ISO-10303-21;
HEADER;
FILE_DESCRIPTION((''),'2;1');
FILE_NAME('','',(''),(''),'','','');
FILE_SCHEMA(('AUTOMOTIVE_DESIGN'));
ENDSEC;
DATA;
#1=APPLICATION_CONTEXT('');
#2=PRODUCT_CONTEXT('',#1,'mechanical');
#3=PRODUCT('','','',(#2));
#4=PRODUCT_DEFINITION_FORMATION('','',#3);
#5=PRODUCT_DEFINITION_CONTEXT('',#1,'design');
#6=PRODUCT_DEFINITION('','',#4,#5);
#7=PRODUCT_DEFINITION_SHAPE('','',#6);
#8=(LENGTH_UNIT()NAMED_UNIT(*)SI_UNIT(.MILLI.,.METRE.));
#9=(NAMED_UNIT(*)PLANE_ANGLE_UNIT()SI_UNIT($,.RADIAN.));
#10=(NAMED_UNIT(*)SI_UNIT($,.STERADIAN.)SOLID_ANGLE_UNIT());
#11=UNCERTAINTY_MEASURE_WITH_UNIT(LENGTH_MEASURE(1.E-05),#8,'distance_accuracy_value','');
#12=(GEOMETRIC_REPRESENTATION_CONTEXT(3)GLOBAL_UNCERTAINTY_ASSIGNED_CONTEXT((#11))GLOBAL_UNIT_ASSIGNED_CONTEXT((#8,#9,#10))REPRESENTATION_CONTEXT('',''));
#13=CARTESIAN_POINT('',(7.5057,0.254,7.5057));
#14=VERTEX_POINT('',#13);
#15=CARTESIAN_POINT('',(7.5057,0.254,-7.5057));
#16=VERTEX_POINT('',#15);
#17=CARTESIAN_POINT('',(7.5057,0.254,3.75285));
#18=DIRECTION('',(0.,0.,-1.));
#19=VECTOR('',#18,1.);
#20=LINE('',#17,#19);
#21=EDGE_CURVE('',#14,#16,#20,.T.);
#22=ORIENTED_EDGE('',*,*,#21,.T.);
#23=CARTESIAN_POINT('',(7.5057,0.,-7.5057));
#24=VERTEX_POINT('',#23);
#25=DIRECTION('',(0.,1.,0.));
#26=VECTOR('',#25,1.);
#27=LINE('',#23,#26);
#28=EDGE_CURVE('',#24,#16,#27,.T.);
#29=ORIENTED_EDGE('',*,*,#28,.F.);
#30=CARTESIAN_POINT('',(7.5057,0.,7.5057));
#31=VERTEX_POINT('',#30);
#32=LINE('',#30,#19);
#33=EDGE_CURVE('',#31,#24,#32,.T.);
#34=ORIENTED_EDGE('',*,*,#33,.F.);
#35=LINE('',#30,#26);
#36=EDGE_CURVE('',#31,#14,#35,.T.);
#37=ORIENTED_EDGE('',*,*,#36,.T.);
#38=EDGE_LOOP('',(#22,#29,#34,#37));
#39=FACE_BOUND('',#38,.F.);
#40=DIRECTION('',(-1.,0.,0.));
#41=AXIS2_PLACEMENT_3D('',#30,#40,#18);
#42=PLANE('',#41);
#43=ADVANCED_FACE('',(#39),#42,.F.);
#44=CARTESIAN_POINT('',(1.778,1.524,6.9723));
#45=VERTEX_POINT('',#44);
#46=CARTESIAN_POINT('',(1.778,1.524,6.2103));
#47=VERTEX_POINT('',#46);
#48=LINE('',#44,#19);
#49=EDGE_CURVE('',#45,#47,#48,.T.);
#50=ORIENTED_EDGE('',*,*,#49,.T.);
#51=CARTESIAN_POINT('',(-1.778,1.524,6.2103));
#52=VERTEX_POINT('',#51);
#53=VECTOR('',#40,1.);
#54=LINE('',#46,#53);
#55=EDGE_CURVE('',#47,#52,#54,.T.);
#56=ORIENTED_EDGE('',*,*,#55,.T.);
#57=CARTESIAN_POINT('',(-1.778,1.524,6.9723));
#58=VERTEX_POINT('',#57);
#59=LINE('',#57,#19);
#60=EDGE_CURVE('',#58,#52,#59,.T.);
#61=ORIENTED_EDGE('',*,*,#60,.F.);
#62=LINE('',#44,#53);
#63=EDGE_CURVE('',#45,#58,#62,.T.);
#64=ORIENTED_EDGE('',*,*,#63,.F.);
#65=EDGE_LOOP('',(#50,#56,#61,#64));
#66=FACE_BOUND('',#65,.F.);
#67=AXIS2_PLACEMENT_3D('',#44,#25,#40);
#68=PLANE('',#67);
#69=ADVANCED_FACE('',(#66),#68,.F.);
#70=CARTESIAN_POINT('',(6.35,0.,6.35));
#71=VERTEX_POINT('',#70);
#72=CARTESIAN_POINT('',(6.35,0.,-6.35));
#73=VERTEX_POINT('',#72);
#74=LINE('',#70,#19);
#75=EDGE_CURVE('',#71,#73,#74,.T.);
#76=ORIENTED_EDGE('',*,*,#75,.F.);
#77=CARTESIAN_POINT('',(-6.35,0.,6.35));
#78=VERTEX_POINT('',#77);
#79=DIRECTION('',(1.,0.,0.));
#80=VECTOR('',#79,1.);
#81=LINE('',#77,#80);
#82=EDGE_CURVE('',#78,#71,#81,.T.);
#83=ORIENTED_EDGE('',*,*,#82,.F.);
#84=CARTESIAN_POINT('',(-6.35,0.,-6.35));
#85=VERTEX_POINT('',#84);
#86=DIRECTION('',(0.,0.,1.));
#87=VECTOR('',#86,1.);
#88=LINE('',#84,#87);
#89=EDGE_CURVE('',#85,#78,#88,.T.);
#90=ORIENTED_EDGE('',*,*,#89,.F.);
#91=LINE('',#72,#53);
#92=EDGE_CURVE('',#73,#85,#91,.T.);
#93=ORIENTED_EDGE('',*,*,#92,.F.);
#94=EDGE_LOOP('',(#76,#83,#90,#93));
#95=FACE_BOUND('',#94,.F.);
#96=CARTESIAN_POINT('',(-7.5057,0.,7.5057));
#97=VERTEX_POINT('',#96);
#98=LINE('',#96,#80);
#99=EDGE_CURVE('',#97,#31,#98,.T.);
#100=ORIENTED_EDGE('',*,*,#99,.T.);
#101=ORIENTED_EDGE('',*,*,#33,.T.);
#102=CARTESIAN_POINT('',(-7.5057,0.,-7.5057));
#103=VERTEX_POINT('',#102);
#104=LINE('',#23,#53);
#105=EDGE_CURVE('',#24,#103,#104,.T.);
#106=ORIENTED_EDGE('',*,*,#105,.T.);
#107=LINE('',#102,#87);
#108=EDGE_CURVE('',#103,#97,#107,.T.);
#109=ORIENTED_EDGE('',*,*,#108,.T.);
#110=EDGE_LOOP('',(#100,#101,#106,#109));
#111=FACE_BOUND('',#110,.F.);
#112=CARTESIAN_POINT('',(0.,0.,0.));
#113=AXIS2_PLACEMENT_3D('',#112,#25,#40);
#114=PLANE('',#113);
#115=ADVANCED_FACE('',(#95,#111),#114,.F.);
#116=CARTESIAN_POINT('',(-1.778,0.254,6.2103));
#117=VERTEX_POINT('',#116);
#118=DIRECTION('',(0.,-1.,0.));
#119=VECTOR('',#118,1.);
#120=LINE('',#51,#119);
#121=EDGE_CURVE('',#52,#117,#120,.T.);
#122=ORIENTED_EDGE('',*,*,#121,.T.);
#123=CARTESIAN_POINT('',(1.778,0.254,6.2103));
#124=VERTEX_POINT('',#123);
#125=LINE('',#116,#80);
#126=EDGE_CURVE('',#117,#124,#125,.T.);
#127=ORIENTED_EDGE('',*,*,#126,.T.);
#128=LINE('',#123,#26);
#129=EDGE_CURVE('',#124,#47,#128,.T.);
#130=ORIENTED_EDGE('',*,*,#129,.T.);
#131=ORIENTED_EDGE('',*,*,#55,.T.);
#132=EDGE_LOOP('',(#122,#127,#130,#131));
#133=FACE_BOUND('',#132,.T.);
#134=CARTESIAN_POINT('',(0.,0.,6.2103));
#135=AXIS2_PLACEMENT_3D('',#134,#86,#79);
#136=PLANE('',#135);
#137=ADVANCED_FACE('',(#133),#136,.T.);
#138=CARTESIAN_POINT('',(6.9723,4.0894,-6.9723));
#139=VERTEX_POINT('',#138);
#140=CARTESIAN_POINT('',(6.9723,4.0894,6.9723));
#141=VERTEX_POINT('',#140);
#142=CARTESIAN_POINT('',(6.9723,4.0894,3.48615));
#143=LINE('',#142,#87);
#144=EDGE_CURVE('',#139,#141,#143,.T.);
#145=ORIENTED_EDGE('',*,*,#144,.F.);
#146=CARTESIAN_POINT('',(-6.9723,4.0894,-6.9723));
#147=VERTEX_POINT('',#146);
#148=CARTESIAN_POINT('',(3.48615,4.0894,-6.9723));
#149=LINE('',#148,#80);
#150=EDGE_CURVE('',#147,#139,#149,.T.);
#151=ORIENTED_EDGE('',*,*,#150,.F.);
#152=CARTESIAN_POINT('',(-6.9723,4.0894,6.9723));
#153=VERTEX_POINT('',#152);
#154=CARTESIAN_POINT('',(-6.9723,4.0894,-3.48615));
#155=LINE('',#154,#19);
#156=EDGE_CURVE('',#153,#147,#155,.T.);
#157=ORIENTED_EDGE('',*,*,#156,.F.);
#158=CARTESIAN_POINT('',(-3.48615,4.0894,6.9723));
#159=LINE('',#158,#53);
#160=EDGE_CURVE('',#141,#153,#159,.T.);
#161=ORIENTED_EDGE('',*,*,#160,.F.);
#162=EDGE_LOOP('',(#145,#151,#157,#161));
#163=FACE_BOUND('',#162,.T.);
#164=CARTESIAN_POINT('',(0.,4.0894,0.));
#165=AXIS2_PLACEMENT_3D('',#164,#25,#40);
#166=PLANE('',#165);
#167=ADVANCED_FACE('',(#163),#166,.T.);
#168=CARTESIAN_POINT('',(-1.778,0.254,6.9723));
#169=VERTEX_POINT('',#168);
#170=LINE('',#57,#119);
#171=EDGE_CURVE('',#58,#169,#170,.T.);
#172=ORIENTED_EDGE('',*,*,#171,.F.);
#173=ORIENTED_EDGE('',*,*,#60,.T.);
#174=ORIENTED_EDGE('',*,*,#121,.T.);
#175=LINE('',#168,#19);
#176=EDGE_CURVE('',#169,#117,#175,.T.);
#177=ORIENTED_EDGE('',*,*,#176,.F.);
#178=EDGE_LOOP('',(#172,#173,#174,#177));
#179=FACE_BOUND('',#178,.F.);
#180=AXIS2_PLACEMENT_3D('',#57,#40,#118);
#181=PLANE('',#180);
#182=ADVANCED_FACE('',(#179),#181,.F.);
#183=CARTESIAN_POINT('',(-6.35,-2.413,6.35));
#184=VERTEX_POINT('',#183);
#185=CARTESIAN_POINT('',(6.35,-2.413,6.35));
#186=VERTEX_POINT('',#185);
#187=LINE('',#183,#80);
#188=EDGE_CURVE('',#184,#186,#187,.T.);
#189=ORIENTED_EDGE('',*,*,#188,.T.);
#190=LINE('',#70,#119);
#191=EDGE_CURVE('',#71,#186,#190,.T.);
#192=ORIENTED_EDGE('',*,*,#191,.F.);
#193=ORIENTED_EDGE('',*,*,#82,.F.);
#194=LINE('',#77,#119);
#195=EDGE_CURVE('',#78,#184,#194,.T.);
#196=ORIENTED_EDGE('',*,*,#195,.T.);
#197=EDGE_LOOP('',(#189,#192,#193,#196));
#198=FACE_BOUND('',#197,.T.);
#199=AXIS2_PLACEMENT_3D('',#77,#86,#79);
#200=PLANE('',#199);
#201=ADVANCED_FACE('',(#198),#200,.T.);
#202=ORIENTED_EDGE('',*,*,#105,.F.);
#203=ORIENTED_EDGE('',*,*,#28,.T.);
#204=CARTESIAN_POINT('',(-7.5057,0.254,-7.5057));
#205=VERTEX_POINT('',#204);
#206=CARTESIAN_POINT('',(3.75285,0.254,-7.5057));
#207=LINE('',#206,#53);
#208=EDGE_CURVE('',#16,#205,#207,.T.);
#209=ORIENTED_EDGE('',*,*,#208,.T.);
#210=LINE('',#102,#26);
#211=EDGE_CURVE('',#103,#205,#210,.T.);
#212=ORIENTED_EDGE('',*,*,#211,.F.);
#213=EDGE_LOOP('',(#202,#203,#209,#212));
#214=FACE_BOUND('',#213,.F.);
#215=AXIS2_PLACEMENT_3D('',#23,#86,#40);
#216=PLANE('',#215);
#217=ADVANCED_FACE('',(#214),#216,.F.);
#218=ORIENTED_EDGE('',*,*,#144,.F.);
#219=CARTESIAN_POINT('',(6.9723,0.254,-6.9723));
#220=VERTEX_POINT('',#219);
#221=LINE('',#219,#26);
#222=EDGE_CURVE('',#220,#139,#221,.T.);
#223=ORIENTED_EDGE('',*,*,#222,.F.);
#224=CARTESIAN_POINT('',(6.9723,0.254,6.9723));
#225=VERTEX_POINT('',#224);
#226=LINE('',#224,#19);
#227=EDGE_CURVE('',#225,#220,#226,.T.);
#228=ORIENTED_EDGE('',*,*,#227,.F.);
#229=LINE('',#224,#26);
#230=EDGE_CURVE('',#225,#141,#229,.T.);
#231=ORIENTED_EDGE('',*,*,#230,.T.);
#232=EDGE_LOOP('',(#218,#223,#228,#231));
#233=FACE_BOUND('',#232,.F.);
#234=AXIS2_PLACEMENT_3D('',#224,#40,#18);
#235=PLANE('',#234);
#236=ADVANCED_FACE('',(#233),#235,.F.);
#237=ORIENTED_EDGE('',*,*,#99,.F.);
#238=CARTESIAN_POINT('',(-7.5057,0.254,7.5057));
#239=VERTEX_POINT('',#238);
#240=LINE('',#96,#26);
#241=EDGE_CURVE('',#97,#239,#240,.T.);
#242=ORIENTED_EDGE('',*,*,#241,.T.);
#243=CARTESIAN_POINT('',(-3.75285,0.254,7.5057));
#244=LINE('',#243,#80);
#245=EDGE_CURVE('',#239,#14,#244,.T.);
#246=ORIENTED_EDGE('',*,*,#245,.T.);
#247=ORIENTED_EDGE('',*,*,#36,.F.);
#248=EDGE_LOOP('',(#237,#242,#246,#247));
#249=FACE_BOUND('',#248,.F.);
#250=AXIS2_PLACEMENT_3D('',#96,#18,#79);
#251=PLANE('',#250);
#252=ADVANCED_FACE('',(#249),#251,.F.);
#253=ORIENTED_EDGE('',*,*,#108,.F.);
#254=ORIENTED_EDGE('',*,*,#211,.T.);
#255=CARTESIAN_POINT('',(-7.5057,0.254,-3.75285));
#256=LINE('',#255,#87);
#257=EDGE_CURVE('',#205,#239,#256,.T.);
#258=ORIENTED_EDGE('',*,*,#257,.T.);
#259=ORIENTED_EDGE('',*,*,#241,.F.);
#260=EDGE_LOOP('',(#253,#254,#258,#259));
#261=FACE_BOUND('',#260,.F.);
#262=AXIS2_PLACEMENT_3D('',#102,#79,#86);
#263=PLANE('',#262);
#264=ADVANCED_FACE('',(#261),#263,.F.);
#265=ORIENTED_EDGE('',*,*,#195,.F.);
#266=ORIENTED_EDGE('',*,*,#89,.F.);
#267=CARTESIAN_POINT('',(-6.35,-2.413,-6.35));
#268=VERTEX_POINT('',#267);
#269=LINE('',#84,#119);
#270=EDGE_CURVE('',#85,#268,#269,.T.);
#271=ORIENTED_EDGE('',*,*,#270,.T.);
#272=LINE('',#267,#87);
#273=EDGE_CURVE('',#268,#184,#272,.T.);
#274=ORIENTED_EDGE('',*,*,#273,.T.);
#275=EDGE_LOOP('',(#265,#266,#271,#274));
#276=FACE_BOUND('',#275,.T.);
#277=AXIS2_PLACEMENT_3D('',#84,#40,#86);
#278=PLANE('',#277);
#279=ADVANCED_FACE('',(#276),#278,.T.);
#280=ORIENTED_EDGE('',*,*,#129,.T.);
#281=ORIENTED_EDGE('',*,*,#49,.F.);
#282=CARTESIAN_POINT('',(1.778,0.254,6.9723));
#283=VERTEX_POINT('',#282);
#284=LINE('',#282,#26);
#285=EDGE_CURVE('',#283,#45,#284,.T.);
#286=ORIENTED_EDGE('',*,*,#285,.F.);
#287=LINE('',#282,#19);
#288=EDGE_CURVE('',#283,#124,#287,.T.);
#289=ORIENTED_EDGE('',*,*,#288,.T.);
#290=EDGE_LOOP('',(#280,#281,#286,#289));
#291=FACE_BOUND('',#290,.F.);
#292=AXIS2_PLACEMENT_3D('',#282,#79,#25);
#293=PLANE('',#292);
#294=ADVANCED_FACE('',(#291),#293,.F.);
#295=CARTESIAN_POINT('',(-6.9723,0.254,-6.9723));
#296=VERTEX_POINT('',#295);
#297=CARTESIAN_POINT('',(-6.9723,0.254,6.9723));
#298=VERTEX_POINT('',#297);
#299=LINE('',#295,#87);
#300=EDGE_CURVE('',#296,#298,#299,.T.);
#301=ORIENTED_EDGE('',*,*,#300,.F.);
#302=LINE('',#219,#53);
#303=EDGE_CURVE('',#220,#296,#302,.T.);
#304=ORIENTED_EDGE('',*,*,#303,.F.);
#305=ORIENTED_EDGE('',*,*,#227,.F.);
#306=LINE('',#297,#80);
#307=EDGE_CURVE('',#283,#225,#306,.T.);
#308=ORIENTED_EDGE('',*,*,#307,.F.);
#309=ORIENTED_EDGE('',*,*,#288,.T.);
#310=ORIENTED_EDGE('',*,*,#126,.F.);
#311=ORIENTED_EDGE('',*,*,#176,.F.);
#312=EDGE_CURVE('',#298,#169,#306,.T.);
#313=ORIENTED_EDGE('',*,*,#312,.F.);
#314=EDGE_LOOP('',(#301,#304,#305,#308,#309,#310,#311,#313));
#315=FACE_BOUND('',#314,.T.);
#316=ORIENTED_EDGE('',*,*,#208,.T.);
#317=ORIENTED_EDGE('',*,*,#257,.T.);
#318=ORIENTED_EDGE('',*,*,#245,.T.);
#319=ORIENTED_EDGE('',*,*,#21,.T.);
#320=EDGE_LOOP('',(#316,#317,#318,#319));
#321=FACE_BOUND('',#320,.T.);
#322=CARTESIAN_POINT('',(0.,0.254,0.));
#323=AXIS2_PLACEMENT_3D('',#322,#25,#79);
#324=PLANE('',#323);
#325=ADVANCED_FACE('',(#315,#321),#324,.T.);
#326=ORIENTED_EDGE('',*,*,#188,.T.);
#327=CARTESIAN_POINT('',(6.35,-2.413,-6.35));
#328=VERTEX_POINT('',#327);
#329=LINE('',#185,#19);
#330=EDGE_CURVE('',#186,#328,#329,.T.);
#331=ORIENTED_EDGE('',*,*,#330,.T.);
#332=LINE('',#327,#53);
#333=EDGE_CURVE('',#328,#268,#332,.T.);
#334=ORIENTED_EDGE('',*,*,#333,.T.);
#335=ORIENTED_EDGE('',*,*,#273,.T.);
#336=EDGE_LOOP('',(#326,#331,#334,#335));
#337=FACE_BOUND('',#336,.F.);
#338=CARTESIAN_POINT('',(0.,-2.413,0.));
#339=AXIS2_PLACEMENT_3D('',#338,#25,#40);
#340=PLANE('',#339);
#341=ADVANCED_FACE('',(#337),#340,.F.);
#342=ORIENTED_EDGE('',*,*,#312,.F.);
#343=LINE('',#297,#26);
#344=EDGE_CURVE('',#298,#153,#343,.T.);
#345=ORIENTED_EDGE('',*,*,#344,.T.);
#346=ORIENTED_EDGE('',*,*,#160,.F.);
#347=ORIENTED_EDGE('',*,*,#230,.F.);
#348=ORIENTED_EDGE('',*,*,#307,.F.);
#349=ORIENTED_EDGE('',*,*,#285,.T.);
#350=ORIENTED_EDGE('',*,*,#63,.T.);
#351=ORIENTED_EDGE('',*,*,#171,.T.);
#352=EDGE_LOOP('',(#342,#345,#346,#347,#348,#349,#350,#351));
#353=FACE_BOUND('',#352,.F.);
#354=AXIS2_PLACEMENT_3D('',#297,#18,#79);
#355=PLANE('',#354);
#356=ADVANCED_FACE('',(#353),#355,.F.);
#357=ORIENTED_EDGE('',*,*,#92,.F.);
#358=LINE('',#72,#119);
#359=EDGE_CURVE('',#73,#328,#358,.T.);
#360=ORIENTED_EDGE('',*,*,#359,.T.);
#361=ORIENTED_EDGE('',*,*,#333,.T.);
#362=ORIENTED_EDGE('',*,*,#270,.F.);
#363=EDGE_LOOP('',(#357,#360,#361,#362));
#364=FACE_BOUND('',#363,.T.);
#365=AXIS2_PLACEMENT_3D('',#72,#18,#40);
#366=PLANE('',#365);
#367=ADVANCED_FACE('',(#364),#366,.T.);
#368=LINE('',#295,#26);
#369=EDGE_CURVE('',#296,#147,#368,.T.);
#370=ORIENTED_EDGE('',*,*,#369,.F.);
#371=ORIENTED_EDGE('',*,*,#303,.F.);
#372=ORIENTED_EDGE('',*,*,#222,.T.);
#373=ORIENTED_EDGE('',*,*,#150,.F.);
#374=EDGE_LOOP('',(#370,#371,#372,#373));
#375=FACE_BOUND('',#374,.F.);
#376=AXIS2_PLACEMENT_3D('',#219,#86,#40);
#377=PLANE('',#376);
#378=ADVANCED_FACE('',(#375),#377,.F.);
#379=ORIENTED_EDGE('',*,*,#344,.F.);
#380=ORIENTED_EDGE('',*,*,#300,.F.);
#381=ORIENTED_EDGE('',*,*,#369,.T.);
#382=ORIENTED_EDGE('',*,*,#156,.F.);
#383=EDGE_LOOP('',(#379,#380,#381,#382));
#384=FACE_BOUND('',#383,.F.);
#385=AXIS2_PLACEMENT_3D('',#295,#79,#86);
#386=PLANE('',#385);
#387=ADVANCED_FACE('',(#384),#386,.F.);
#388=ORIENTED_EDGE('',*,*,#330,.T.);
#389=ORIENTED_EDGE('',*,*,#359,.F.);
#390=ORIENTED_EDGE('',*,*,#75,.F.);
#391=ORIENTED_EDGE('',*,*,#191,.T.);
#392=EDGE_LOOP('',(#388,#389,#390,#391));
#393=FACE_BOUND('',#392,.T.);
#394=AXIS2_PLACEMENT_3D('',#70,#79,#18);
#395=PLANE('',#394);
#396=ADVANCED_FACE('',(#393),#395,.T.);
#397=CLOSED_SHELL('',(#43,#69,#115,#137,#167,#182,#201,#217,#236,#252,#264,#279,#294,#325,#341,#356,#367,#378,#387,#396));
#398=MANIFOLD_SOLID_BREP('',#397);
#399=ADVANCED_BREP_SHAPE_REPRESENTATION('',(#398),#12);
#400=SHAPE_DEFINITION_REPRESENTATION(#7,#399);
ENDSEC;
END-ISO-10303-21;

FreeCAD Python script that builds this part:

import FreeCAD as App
import Part
import Sketcher
Q = App.Units.Quantity


def add_polygon(sketch, points):
    """Adds a closed chain of lines whose ends are joined by coincident constraints."""
    first, n = sketch.GeometryCount, len(points)
    for a, b in zip(points, points[1:] + points[:1]):
        sketch.addGeometry(Part.LineSegment(App.Vector(*a, 0), App.Vector(*b, 0)), False)
    for i in range(n):
        sketch.addConstraint(Sketcher.Constraint("Coincident", first + i, 2, first + (i + 1) % n, 1))

doc = App.newDocument("Part")
body = doc.addObject("PartDesign::Body", "Body")

sketch1 = doc.addObject("Sketcher::SketchObject", "Sketch")
body.addObject(sketch1)
sketch1.AttachmentSupport = (doc.XZ_Plane, [""])
sketch1.MapMode = "FlatFace"
add_polygon(sketch1, [(-8, -8), (-8, 8), (8, 8), (8, -8)])
sketch1.addConstraint(Sketcher.Constraint("Vertical", 0))
sketch1.addConstraint(Sketcher.Constraint("Horizontal", 1))
sketch1.addConstraint(Sketcher.Constraint("Vertical", 2))
sketch1.addConstraint(Sketcher.Constraint("Horizontal", 3))
sketch1.addConstraint(Sketcher.Constraint("Symmetric", 0, 2, 2, 2, -1, 1))
sketch1.addConstraint(Sketcher.Constraint("Equal", 3, 0))
sketch1.addConstraint(Sketcher.Constraint("DistanceX", 1, 1, 1, 2, Q("0.591 in")))
pad1 = doc.addObject("PartDesign::Pad", "Pad")
body.addObject(pad1)
pad1.Profile = sketch1
pad1.Length = Q("0.161 in")
pad1.Reversed = True

sketch2 = doc.addObject("Sketcher::SketchObject", "Sketch001")
body.addObject(sketch2)
sketch2.AttachmentSupport = (doc.XZ_Plane, [""])
sketch2.MapMode = "FlatFace"
sketch2.AttachmentOffset = App.Placement(App.Vector(0, 0, -0.01 * 25.4), App.Rotation())
add_polygon(sketch2, [(-8, -8), (-8, 8), (8, 8), (8, -8)])
add_polygon(sketch2, [(7, 7), (-7, 7), (-7, -7), (7, -7)])
sketch2.addConstraint(Sketcher.Constraint("Vertical", 0))
sketch2.addConstraint(Sketcher.Constraint("Horizontal", 1))
sketch2.addConstraint(Sketcher.Constraint("Vertical", 2))
sketch2.addConstraint(Sketcher.Constraint("Horizontal", 3))
sketch2.addConstraint(Sketcher.Constraint("Horizontal", 4))
sketch2.addConstraint(Sketcher.Constraint("Vertical", 5))
sketch2.addConstraint(Sketcher.Constraint("Horizontal", 6))
sketch2.addConstraint(Sketcher.Constraint("Vertical", 7))
sketch2.addConstraint(Sketcher.Constraint("Symmetric", 0, 2, 2, 2, -1, 1))
sketch2.addConstraint(Sketcher.Constraint("Symmetric", 4, 2, 6, 2, -1, 1))
sketch2.addConstraint(Sketcher.Constraint("Equal", 3, 0))
sketch2.addConstraint(Sketcher.Constraint("Equal", 6, 5))
sketch2.addConstraint(Sketcher.Constraint("DistanceX", 1, 1, 1, 2, Q("0.6 in")))
sketch2.addConstraint(Sketcher.Constraint("DistanceX", 4, 2, 4, 1, Q("0.549 in")))
pocket1 = doc.addObject("PartDesign::Pocket", "Pocket")
body.addObject(pocket1)
pocket1.Profile = sketch2
pocket1.Length = Q("0.25 in")

sketch3 = doc.addObject("Sketcher::SketchObject", "Sketch002")
body.addObject(sketch3)
sketch3.AttachmentSupport = (doc.XY_Plane, [""])
sketch3.MapMode = "FlatFace"
sketch3.AttachmentOffset = App.Placement(App.Vector(0, 0, 0.2745 * 25.4), App.Rotation())
add_polygon(sketch3, [(-1.8, 1.5), (-1.8, 0.3), (1.8, 0.3), (1.8, 1.5)])
sketch3.addConstraint(Sketcher.Constraint("Vertical", 0))
sketch3.addConstraint(Sketcher.Constraint("Horizontal", 1))
sketch3.addConstraint(Sketcher.Constraint("Vertical", 2))
sketch3.addConstraint(Sketcher.Constraint("Horizontal", 3))
sketch3.addConstraint(Sketcher.Constraint("DistanceX", 1, 1, 1, 2, Q("0.14 in")))
sketch3.addConstraint(Sketcher.Constraint("DistanceY", 0, 2, 0, 1, Q("0.05 in")))
sketch3.addConstraint(Sketcher.Constraint("DistanceX", 0, 2, -1, 1, Q("0.07 in")))
sketch3.addConstraint(Sketcher.Constraint("DistanceY", -1, 1, 0, 2, Q("0.01 in")))
pocket2 = doc.addObject("PartDesign::Pocket", "Pocket001")
body.addObject(pocket2)
pocket2.Profile = sketch3
pocket2.Length = Q("0.03 in")

sketch4 = doc.addObject("Sketcher::SketchObject", "Sketch003")
body.addObject(sketch4)
sketch4.AttachmentSupport = (doc.XZ_Plane, [""])
sketch4.MapMode = "FlatFace"
add_polygon(sketch4, [(-6, -6), (-6, 6), (6, 6), (6, -6)])
sketch4.addConstraint(Sketcher.Constraint("Vertical", 0))
sketch4.addConstraint(Sketcher.Constraint("Horizontal", 1))
sketch4.addConstraint(Sketcher.Constraint("Vertical", 2))
sketch4.addConstraint(Sketcher.Constraint("Horizontal", 3))
sketch4.addConstraint(Sketcher.Constraint("Symmetric", 0, 2, 2, 2, -1, 1))
sketch4.addConstraint(Sketcher.Constraint("Equal", 3, 0))
sketch4.addConstraint(Sketcher.Constraint("DistanceX", 1, 1, 1, 2, Q("0.5 in")))
pad2 = doc.addObject("PartDesign::Pad", "Pad001")
body.addObject(pad2)
pad2.Profile = sketch4
pad2.Length = Q("0.095 in")

doc.recompute()
